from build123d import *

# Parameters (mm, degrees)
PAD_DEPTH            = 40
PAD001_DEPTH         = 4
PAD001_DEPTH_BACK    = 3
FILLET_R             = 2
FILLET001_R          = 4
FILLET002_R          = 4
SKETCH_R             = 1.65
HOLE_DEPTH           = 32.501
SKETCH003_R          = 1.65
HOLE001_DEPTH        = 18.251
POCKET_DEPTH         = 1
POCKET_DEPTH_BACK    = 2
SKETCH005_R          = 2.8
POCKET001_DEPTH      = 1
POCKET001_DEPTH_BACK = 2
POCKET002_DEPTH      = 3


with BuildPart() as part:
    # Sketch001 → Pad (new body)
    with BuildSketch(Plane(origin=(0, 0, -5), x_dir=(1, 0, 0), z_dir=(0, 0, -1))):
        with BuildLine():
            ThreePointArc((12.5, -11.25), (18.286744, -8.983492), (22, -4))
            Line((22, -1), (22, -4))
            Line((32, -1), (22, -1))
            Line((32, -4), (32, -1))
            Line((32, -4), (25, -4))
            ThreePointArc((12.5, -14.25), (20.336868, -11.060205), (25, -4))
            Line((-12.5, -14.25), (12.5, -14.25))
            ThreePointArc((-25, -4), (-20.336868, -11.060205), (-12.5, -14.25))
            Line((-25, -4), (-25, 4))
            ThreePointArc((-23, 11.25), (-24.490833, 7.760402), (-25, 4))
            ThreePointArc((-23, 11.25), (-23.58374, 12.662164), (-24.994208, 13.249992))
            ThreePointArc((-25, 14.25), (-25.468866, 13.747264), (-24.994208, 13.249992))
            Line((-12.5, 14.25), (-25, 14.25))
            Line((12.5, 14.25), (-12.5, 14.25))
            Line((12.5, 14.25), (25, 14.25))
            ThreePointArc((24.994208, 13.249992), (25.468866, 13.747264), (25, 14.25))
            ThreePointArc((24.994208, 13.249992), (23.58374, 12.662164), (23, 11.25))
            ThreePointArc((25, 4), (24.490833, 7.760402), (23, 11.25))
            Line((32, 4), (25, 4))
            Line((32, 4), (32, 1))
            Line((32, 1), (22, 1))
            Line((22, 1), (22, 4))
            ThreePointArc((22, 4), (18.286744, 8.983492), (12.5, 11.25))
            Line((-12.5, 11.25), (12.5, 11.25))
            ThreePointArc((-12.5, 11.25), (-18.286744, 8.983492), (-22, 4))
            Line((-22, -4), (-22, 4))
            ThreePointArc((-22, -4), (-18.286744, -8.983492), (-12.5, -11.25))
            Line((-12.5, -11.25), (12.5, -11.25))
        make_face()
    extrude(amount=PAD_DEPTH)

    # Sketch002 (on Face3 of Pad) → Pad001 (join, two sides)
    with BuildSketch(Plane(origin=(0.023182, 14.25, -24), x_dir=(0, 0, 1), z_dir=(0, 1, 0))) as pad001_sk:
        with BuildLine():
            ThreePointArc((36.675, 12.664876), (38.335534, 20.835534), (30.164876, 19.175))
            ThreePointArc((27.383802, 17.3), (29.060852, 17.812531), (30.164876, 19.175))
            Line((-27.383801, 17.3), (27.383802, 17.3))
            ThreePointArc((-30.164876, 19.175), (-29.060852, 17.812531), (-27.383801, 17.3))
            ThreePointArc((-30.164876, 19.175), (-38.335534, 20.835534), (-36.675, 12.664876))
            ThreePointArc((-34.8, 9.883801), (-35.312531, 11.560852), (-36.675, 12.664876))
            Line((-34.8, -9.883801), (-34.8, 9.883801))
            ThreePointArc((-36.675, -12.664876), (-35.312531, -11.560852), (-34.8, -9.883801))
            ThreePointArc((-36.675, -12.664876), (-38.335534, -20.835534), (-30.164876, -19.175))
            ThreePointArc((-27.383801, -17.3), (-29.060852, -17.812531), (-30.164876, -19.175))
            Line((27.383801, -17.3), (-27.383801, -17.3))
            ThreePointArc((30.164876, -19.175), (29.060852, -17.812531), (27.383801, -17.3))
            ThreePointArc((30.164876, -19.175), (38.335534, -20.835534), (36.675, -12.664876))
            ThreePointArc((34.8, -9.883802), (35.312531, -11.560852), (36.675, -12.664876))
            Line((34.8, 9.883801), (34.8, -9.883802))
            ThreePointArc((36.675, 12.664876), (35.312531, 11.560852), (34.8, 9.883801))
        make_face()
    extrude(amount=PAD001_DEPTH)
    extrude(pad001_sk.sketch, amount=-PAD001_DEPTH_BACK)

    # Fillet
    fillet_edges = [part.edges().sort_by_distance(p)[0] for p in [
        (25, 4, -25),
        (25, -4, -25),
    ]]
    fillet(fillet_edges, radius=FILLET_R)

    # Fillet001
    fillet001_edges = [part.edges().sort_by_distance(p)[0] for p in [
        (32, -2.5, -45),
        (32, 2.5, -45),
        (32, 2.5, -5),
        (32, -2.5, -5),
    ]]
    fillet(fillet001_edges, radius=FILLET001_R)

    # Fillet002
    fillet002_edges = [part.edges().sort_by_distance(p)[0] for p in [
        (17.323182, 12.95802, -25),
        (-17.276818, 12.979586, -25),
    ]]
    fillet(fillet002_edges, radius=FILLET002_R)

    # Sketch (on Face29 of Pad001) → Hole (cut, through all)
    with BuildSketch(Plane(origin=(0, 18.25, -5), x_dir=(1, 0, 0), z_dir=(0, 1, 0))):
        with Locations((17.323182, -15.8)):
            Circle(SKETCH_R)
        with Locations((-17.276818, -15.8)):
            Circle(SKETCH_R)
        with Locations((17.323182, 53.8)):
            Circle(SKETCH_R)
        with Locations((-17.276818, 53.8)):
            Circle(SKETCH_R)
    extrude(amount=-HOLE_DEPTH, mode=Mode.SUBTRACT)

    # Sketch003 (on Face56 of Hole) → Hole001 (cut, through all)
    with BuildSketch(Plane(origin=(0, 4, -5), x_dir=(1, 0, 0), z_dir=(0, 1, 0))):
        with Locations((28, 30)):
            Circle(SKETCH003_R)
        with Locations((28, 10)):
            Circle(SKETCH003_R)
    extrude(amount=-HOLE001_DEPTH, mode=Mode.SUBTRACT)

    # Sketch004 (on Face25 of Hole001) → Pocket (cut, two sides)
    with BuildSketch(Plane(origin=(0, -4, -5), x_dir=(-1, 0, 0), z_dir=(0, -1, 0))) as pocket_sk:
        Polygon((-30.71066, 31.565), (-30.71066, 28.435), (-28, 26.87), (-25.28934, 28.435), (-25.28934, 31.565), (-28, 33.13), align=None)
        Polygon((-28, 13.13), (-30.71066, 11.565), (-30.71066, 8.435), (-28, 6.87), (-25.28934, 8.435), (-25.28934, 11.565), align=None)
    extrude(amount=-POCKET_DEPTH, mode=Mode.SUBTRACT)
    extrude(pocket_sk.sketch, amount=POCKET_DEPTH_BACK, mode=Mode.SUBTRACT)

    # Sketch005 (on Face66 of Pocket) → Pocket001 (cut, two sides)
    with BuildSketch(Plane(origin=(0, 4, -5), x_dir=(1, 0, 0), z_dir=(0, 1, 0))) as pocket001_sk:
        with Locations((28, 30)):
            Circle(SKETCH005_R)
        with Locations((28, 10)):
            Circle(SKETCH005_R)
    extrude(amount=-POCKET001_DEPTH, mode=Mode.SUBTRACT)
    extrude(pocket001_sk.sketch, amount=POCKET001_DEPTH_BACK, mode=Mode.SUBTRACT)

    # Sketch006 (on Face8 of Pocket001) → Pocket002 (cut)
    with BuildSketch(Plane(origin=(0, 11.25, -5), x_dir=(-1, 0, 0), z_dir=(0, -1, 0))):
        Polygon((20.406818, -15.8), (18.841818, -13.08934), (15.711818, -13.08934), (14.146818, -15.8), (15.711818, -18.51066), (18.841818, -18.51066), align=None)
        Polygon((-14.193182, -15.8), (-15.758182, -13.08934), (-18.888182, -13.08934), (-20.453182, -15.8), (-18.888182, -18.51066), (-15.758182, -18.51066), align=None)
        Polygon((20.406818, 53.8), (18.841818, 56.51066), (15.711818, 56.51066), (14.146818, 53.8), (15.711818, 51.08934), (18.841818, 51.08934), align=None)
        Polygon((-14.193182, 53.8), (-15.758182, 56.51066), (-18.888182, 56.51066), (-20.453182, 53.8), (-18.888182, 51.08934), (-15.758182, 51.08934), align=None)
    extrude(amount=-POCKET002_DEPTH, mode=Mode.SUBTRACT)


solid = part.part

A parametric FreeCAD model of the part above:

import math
import FreeCAD as App
import Part
import Sketcher
Q = App.Units.Quantity


def edges_at(feature, points):
    """Names of the edges that pass closest to the given points."""
    edges = feature.Shape.Edges
    near = lambda p: min(range(len(edges)), key=lambda i: edges[i].distToShape(Part.Vertex(*p))[0])
    return sorted({f"Edge{near(p) + 1}" for p in points})

doc = App.newDocument("Part")
params = doc.addObject("Spreadsheet::Sheet", "Params")
for row, (alias, value) in enumerate([
    ("sketch1_radius", "2.000001 mm"),
    ("sketch1_width", "25 mm"),
    ("sketch1_width2", "10 mm"),
    ("sketch1_width3", "7 mm"),
    ("sketch1_width4", "50 mm"),
    ("pad1_length", "40 mm"),
    ("sketch2_radius", "5 mm"),
    ("sketch2_radius2", "3 mm"),
    ("pad2_length", "4 mm"),
    ("pad2_length2", "3 mm"),
    ("fillet_radius", "2 mm"),
    ("fillet2_radius", "4 mm"),
    ("fillet3_radius", "4 mm"),
    ("sketch3_diameter", "3.3 mm"),
    ("sketch4_diameter", "3.3 mm"),
    ("sketch5_height", "3.13 mm"),
    ("sketch5_length", "3.13 mm"),
    ("pocket3_length", "1 mm"),
    ("pocket3_length2", "2 mm"),
    ("sketch6_diameter", "5.6 mm"),
    ("pocket4_length", "1 mm"),
    ("pocket4_length2", "2 mm"),
    ("sketch7_width", "3.13 mm"),
    ("sketch7_length", "3.13 mm"),
    ("pocket5_length", "3 mm"),
], start=1):
    params.set(f"A{row}", alias)
    params.set(f"B{row}", "=" + value)
    params.setAlias(f"B{row}", alias)

body = doc.addObject("PartDesign::Body", "Body")

# Sketch on XY plane
sketch1 = body.newObject("Sketcher::SketchObject", "Sketch")
sketch1.AttachmentSupport = (doc.getObject("XY_Plane"), [""])
sketch1.MapMode = "FlatFace"
sketch1.AttachmentOffset = App.Placement(App.Vector(0, 0, -5), App.Rotation())
sketch1.addGeometry([
    Part.ArcOfCircle(Part.Circle(App.Vector(11.430922, 0.000002, 0), App.Vector(0, 0, 1), 11.300681), math.radians(20.729769), math.radians(84.571533)),  # 0
    Part.LineSegment(App.Vector(12.5, 11.25, 0), App.Vector(-12.5, 11.25, 0)),  # 1
    Part.ArcOfCircle(Part.Circle(App.Vector(-11.430922, 0.000002, 0), App.Vector(0, 0, 1), 11.300681), math.radians(95.428467), math.radians(159.270231)),  # 2
    Part.LineSegment(App.Vector(-22, 4, 0), App.Vector(-22, -4, 0)),  # 3
    Part.ArcOfCircle(Part.Circle(App.Vector(-11.430922, -0.000002, 0), App.Vector(0, 0, 1), 11.300681), math.radians(-159.270231), math.radians(-95.428467)),  # 4
    Part.LineSegment(App.Vector(-12.5, -11.25, 0), App.Vector(12.5, -11.25, 0)),  # 5
    Part.ArcOfCircle(Part.Circle(App.Vector(11.430922, -0.000002, 0), App.Vector(0, 0, 1), 11.300681), math.radians(-84.571533), math.radians(-20.729769)),  # 6
    Part.LineSegment(App.Vector(22, -4, 0), App.Vector(22, -1, 0)),  # 7
    Part.LineSegment(App.Vector(22, -1, 0), App.Vector(32, -1, 0)),  # 8
    Part.LineSegment(App.Vector(32, -1, 0), App.Vector(32, -4, 0)),  # 9
    Part.LineSegment(App.Vector(32, -4, 0), App.Vector(25, -4, 0)),  # 10
    Part.ArcOfCircle(Part.Circle(App.Vector(10.85937, -3.999999, 0), App.Vector(0, 0, 1), 14.14063), math.radians(-30.844317), math.radians(-0.000005)),  # 11
    Part.ArcOfCircle(Part.Circle(App.Vector(25.000001, -11.249999, 0), App.Vector(0, 0, 1), 2.000001), math.radians(-179.999984), math.radians(-90.165956)),  # 12
    Part.ArcOfCircle(Part.Circle(App.Vector(24.968017, -13.750164, 0), App.Vector(0, 0, 1), 0.500858), math.radians(-86.338763), math.radians(87.002465)),  # 13
    Part.LineSegment(App.Vector(25, -14.25, 0), App.Vector(-25, -14.25, 0)),  # 14
    Part.ArcOfCircle(Part.Circle(App.Vector(-24.968017, -13.750164, 0), App.Vector(0, 0, 1), 0.500858), math.radians(92.997535), math.radians(266.338763)),  # 15
    Part.ArcOfCircle(Part.Circle(App.Vector(-25.000001, -11.249999, 0), App.Vector(0, 0, 1), 2.000001), math.radians(-89.834044), math.radians(-0.000016)),  # 16
    Part.ArcOfCircle(Part.Circle(App.Vector(-10.85937, -3.999999, 0), App.Vector(0, 0, 1), 14.14063), math.radians(-179.999995), math.radians(-149.155683)),  # 17
    Part.LineSegment(App.Vector(-25, -4, 0), App.Vector(-25, 4, 0)),  # 18
    Part.ArcOfCircle(Part.Circle(App.Vector(-11.267502, 0.000002, 0), App.Vector(0, 0, 1), 14.303199), math.radians(94.943274), math.radians(163.760231)),  # 19
    Part.LineSegment(App.Vector(-12.5, 14.25, 0), App.Vector(12.5, 14.25, 0)),  # 20
    Part.ArcOfCircle(Part.Circle(App.Vector(11.267502, 0.000002, 0), App.Vector(0, 0, 1), 14.303199), math.radians(16.239769), math.radians(85.056726)),  # 21
    Part.LineSegment(App.Vector(25, 4, 0), App.Vector(32, 4, 0)),  # 22
    Part.LineSegment(App.Vector(32, 4, 0), App.Vector(32, 1, 0)),  # 23
    Part.LineSegment(App.Vector(32, 1, 0), App.Vector(22, 1, 0)),  # 24
    Part.LineSegment(App.Vector(22, 1, 0), App.Vector(22, 4, 0)),  # 25
], False)
sketch1.addConstraint([
    Sketcher.Constraint("Coincident", 0, 2, 1, 1),
    Sketcher.Constraint("Coincident", 1, 2, 2, 1),
    Sketcher.Constraint("Coincident", 2, 2, 3, 1),
    Sketcher.Constraint("Coincident", 3, 2, 4, 1),
    Sketcher.Constraint("Coincident", 4, 2, 5, 1),
    Sketcher.Constraint("Coincident", 5, 2, 6, 1),
    Sketcher.Constraint("Coincident", 6, 2, 7, 1),
    Sketcher.Constraint("Coincident", 7, 2, 8, 1),
    Sketcher.Constraint("Coincident", 8, 2, 9, 1),
    Sketcher.Constraint("Coincident", 9, 2, 10, 1),
    Sketcher.Constraint("Coincident", 10, 2, 11, 2),
    Sketcher.Constraint("Coincident", 11, 1, 12, 1),
    Sketcher.Constraint("Coincident", 12, 2, 13, 2),
    Sketcher.Constraint("Coincident", 13, 1, 14, 1),
    Sketcher.Constraint("Coincident", 14, 2, 15, 2),
    Sketcher.Constraint("Coincident", 15, 1, 16, 1),
    Sketcher.Constraint("Coincident", 16, 2, 17, 2),
    Sketcher.Constraint("Tangent", 17, 1, 18, 1),
    Sketcher.Constraint("Coincident", 18, 2, 19, 2),
    Sketcher.Constraint("Coincident", 19, 1, 20, 1),
    Sketcher.Constraint("Coincident", 20, 2, 21, 2),
    Sketcher.Constraint("Coincident", 21, 1, 22, 1),
    Sketcher.Constraint("Coincident", 22, 2, 23, 1),
    Sketcher.Constraint("Coincident", 23, 2, 24, 1),
    Sketcher.Constraint("Coincident", 24, 2, 25, 1),
    Sketcher.Constraint("Coincident", 25, 2, 0, 1),
    Sketcher.Constraint("Horizontal", 1),
    Sketcher.Constraint("Vertical", 3),
    Sketcher.Constraint("Horizontal", 5),
    Sketcher.Constraint("Vertical", 7),
    Sketcher.Constraint("Horizontal", 8),
    Sketcher.Constraint("Vertical", 9),
    Sketcher.Constraint("Horizontal", 10),
    Sketcher.Constraint("Horizontal", 14),
    Sketcher.Constraint("Vertical", 18),
    Sketcher.Constraint("Horizontal", 20),
    Sketcher.Constraint("Horizontal", 22),
    Sketcher.Constraint("Vertical", 23),
    Sketcher.Constraint("Horizontal", 24),
    Sketcher.Constraint("Vertical", 25),
    Sketcher.Constraint("Coincident", 4, 3, 2, 3),
    Sketcher.Constraint("Coincident", 6, 3, 0, 3),
    Sketcher.Constraint("Equal", 0, 2),
    Sketcher.Constraint("Equal", 2, 4),
    Sketcher.Constraint("Equal", 4, 6),
    Sketcher.Constraint("Equal", 13, 15),
    Sketcher.Constraint("Equal", 12, 16),
    Sketcher.Constraint("Equal", 11, 17),
    Sketcher.Constraint("Equal", 19, 21),
    Sketcher.Constraint("Symmetric", 0, 3, 2, 3, -1, 1),
    Sketcher.Constraint("Symmetric", 19, 3, 21, 3, -1, 1),
    Sketcher.Constraint("Symmetric", 10, 2, 18, 2, -1, 1),
    Sketcher.Constraint("Symmetric", 17, 1, 21, 1, -1, 1),
    Sketcher.Constraint("Symmetric", 13, 3, 15, 3, -2),
    Sketcher.Constraint("Symmetric", 12, 3, 16, 3, -2),
    Sketcher.Constraint("Symmetric", 3, 2, 6, 2, -2),
    Sketcher.Constraint("Symmetric", 9, 2, 22, 2, -1),
    Sketcher.Constraint("Symmetric", 7, 2, 24, 2, -1),
    Sketcher.Constraint("Horizontal", 11, 3, 17, 3),
    Sketcher.Constraint("Horizontal", 17, 3, 3, 2),
    Sketcher.Constraint("Horizontal", 16, 3, 4, 2),
    Sketcher.Constraint("Horizontal", 5, 2, 11, 1),
    Sketcher.Constraint("Vertical", 1, 2, 4, 2),
    Sketcher.Constraint("Vertical", 12, 3, 10, 2),
    Sketcher.Constraint("Vertical", 10, 2, 13, 1),
    Sketcher.Constraint("Vertical", 4, 2, 19, 1),
    Sketcher.Constraint("Radius", 12, Q("2.000001 mm")),
    Sketcher.Constraint("DistanceX", 1, 2, 1, 1, Q("25 mm")),
    Sketcher.Constraint("DistanceX", 8, 1, 8, 2, Q("10 mm")),
    Sketcher.Constraint("DistanceX", 10, 2, 10, 1, Q("7 mm")),
    Sketcher.Constraint("DistanceX", 14, 2, 14, 1, Q("50 mm")),
    Sketcher.Constraint("DistanceY", 3, 2, 3, 1, Q("8 mm")),
    Sketcher.Constraint("DistanceY", 7, 1, 7, 2, Q("3 mm")),
    Sketcher.Constraint("DistanceY", 13, 1, 12, 3, Q("3.000001 mm")),
    Sketcher.Constraint("DistanceY", 1, 2, 19, 1, Q("3 mm")),
    Sketcher.Constraint("Radius", 19, Q("14.303199 mm")),
    Sketcher.Constraint("Radius", 13, Q("0.500858 mm")),
    Sketcher.Constraint("DistanceX", -1, 1, 12, 2, Q("24.994208 mm")),
])
sketch1.setExpression("Constraints[66]", "Params.sketch1_radius")
sketch1.setExpression("Constraints[67]", "Params.sketch1_width")
sketch1.setExpression("Constraints[68]", "Params.sketch1_width2")
sketch1.setExpression("Constraints[69]", "Params.sketch1_width3")
sketch1.setExpression("Constraints[70]", "Params.sketch1_width4")
pad1 = body.newObject("PartDesign::Pad", "Pad")
pad1.Profile = sketch1
pad1.setExpression("Length", "Params.pad1_length")
pad1.Reversed = True

# Sketch on XZ plane
sketch2 = body.newObject("Sketcher::SketchObject", "Sketch001")
sketch2.AttachmentSupport = (doc.getObject("XZ_Plane"), [""])
sketch2.MapMode = "FlatFace"
sketch2.AttachmentOffset = App.Placement(App.Vector(0, 0, -14.25), App.Rotation())
sketch2.addGeometry([
    Part.ArcOfCircle(Part.Circle(App.Vector(17.323182, 10.8, 0), App.Vector(0, 0, 1), 5), math.radians(-67.975688), math.radians(157.975688)),  # 0
    Part.ArcOfCircle(Part.Circle(App.Vector(20.323182, 3.383802, 0), App.Vector(0, 0, 1), 3), math.radians(112.024311), math.radians(179.999994)),  # 1
    Part.LineSegment(App.Vector(17.323182, 3.383802, 0), App.Vector(17.323182, -51.383801, 0)),  # 2
    Part.ArcOfCircle(Part.Circle(App.Vector(20.323182, -51.383802, 0), App.Vector(0, 0, 1), 3), math.radians(179.999987), math.radians(247.975689)),  # 3
    Part.ArcOfCircle(Part.Circle(App.Vector(17.323182, -58.8, 0), App.Vector(0, 0, 1), 5), math.radians(-157.975688), math.radians(67.975688)),  # 4
    Part.ArcOfCircle(Part.Circle(App.Vector(9.906984, -61.8, 0), App.Vector(0, 0, 1), 3), math.radians(22.024311), math.radians(90.000013)),  # 5
    Part.LineSegment(App.Vector(9.906983, -58.8, 0), App.Vector(-9.860619, -58.8, 0)),  # 6
    Part.ArcOfCircle(Part.Circle(App.Vector(-9.86062, -61.8, 0), App.Vector(0, 0, 1), 3), math.radians(89.999987), math.radians(157.975689)),  # 7
    Part.ArcOfCircle(Part.Circle(App.Vector(-17.276818, -58.8, 0), App.Vector(0, 0, 1), 5), math.radians(112.024312), math.radians(337.975688)),  # 8
    Part.ArcOfCircle(Part.Circle(App.Vector(-20.276818, -51.383802, 0), App.Vector(0, 0, 1), 3), math.radians(-67.975689), math.radians(0.000013)),  # 9
    Part.LineSegment(App.Vector(-17.276818, -51.383801, 0), App.Vector(-17.276818, 3.383801, 0)),  # 10
    Part.ArcOfCircle(Part.Circle(App.Vector(-20.276818, 3.383802, 0), App.Vector(0, 0, 1), 3), math.radians(-0.000013), math.radians(67.975689)),  # 11
    Part.ArcOfCircle(Part.Circle(App.Vector(-17.276818, 10.8, 0), App.Vector(0, 0, 1), 5), math.radians(22.024312), math.radians(247.975688)),  # 12
    Part.ArcOfCircle(Part.Circle(App.Vector(-9.86062, 13.8, 0), App.Vector(0, 0, 1), 3), math.radians(-157.975689), math.radians(-90.000006)),  # 13
    Part.LineSegment(App.Vector(-9.86062, 10.8, 0), App.Vector(9.906983, 10.8, 0)),  # 14
    Part.ArcOfCircle(Part.Circle(App.Vector(9.906984, 13.8, 0), App.Vector(0, 0, 1), 3), math.radians(-90.000013), math.radians(-22.024311)),  # 15
], False)
sketch2.addConstraint([
    Sketcher.Constraint("Tangent", 0, 1, 1, 1),
    Sketcher.Constraint("Tangent", 1, 2, 2, 1),
    Sketcher.Constraint("Tangent", 2, 2, 3, 1),
    Sketcher.Constraint("Tangent", 3, 2, 4, 2),
    Sketcher.Constraint("Tangent", 4, 1, 5, 1),
    Sketcher.Constraint("Tangent", 5, 2, 6, 1),
    Sketcher.Constraint("Tangent", 6, 2, 7, 1),
    Sketcher.Constraint("Tangent", 7, 2, 8, 2),
    Sketcher.Constraint("Tangent", 8, 1, 9, 1),
    Sketcher.Constraint("Tangent", 9, 2, 10, 1),
    Sketcher.Constraint("Tangent", 10, 2, 11, 1),
    Sketcher.Constraint("Tangent", 11, 2, 12, 2),
    Sketcher.Constraint("Tangent", 12, 1, 13, 1),
    Sketcher.Constraint("Tangent", 13, 2, 14, 1),
    Sketcher.Constraint("Tangent", 14, 2, 15, 1),
    Sketcher.Constraint("Tangent", 15, 2, 0, 2),
    Sketcher.Constraint("Vertical", 2),
    Sketcher.Constraint("Horizontal", 6),
    Sketcher.Constraint("Vertical", 10),
    Sketcher.Constraint("Horizontal", 14),
    Sketcher.Constraint("Equal", 1, 3),
    Sketcher.Constraint("Equal", 0, 4),
    Sketcher.Constraint("Equal", 3, 5),
    Sketcher.Constraint("Equal", 5, 7),
    Sketcher.Constraint("Equal", 4, 8),
    Sketcher.Constraint("Equal", 7, 9),
    Sketcher.Constraint("Equal", 9, 11),
    Sketcher.Constraint("Equal", 8, 12),
    Sketcher.Constraint("Equal", 11, 13),
    Sketcher.Constraint("Equal", 13, 15),
    Sketcher.Constraint("Horizontal", 4, 3, 8, 3),
    Sketcher.Constraint("Horizontal", 3, 3, 9, 3),
    Sketcher.Constraint("Horizontal", 1, 3, 11, 3),
    Sketcher.Constraint("Horizontal", 0, 3, 12, 3),
    Sketcher.Constraint("Horizontal", 8, 3, 5, 2),
    Sketcher.Constraint("Horizontal", 12, 3, 13, 2),
    Sketcher.Constraint("Vertical", 0, 3, 4, 3),
    Sketcher.Constraint("Vertical", 4, 3, 1, 2),
    Sketcher.Constraint("Radius", 0, Q("5 mm")),
    Sketcher.Constraint("Radius", 1, Q("3 mm")),
    Sketcher.Constraint("DistanceY", -1, 1, 0, 3, Q("10.8 mm")),
    Sketcher.Constraint("DistanceY", 4, 3, -1, 1, Q("58.8 mm")),
    Sketcher.Constraint("DistanceX", 8, 3, 4, 3, Q("34.6 mm")),
    Sketcher.Constraint("DistanceX", -1, 1, 1, 3, Q("20.323182 mm")),
])
sketch2.setExpression("Constraints[38]", "Params.sketch2_radius")
sketch2.setExpression("Constraints[39]", "Params.sketch2_radius2")
pad2 = body.newObject("PartDesign::Pad", "Pad001")
pad2.Profile = sketch2
pad2.Type = "TwoLengths"
pad2.setExpression("Length", "Params.pad2_length")
pad2.setExpression("Length2", "Params.pad2_length2")
pad2.Reversed = True
doc.recompute()

fillet = body.newObject("PartDesign::Fillet", "Fillet")
fillet.Base = (pad2, edges_at(pad2, [(25, 4, -25), (25, -4, -25)]))
fillet.setExpression("Radius", "Params.fillet_radius")
doc.recompute()

fillet2 = body.newObject("PartDesign::Fillet", "Fillet001")
fillet2.Base = (fillet, edges_at(fillet, [
    (32, -2.5, -45),
    (32, 2.5, -45),
    (32, 2.5, -5),
    (32, -2.5, -5),
]))
fillet2.setExpression("Radius", "Params.fillet2_radius")
doc.recompute()

fillet3 = body.newObject("PartDesign::Fillet", "Fillet002")
fillet3.Base = (fillet2, edges_at(fillet2, [(17.323, 12.958, -25), (-17.277, 12.98, -25)]))
fillet3.setExpression("Radius", "Params.fillet3_radius")

# Sketch on XZ plane
sketch3 = body.newObject("Sketcher::SketchObject", "Sketch002")
sketch3.AttachmentSupport = (doc.getObject("XZ_Plane"), [""])
sketch3.MapMode = "FlatFace"
sketch3.AttachmentOffset = App.Placement(App.Vector(0, 0, -18.25), App.Rotation())
sketch3.addGeometry([
    Part.Circle(App.Vector(17.323182, 10.8, 0), App.Vector(0, 0, 1), 1.65),
    Part.Circle(App.Vector(-17.276818, 10.8, 0), App.Vector(0, 0, 1), 1.65),
    Part.Circle(App.Vector(17.323182, -58.8, 0), App.Vector(0, 0, 1), 1.65),
    Part.Circle(App.Vector(-17.276818, -58.8, 0), App.Vector(0, 0, 1), 1.65),
], False)
sketch3.addConstraint([
    Sketcher.Constraint("Equal", 0, 1),
    Sketcher.Constraint("Equal", 1, 2),
    Sketcher.Constraint("Equal", 2, 3),
    Sketcher.Constraint("Horizontal", 0, 3, 1, 3),
    Sketcher.Constraint("Horizontal", 2, 3, 3, 3),
    Sketcher.Constraint("Vertical", 0, 3, 2, 3),
    Sketcher.Constraint("Vertical", 1, 3, 3, 3),
    Sketcher.Constraint("Diameter", 0, Q("3.3 mm")),
    Sketcher.Constraint("DistanceY", -1, 1, 0, 3, Q("10.8 mm")),
    Sketcher.Constraint("DistanceY", 2, 3, -1, 1, Q("58.8 mm")),
    Sketcher.Constraint("DistanceX", 1, 3, 0, 3, Q("34.6 mm")),
    Sketcher.Constraint("DistanceX", -1, 1, 0, 3, Q("17.323182 mm")),
])
sketch3.setExpression("Constraints[7]", "Params.sketch3_diameter")
pocket1 = body.newObject("PartDesign::Pocket", "Pocket")
pocket1.Profile = sketch3
pocket1.Type = "ThroughAll"
pocket1.Reversed = True

# Sketch on XZ plane
sketch4 = body.newObject("Sketcher::SketchObject", "Sketch003")
sketch4.AttachmentSupport = (doc.getObject("XZ_Plane"), [""])
sketch4.MapMode = "FlatFace"
sketch4.AttachmentOffset = App.Placement(App.Vector(0, 0, -4), App.Rotation())
sketch4.addGeometry([
    Part.Circle(App.Vector(28, -35, 0), App.Vector(0, 0, 1), 1.65),
    Part.Circle(App.Vector(28, -15, 0), App.Vector(0, 0, 1), 1.65),
], False)
sketch4.addConstraint([
    Sketcher.Constraint("Equal", 0, 1),
    Sketcher.Constraint("Vertical", 0, 3, 1, 3),
    Sketcher.Constraint("Diameter", 0, Q("3.3 mm")),
    Sketcher.Constraint("DistanceX", -1, 1, 0, 3, Q("28 mm")),
    Sketcher.Constraint("DistanceY", 0, 3, -1, 1, Q("35 mm")),
    Sketcher.Constraint("DistanceY", 1, 3, -1, 1, Q("15 mm")),
])
sketch4.setExpression("Constraints[2]", "Params.sketch4_diameter")
pocket2 = body.newObject("PartDesign::Pocket", "Pocket001")
pocket2.Profile = sketch4
pocket2.Type = "ThroughAll"
pocket2.Reversed = True

# Sketch on XZ plane
sketch5 = body.newObject("Sketcher::SketchObject", "Sketch004")
sketch5.AttachmentSupport = (doc.getObject("XZ_Plane"), [""])
sketch5.MapMode = "FlatFace"
sketch5.AttachmentOffset = App.Placement(App.Vector(0, 0, 4), App.Rotation())
sketch5.addGeometry([
    Part.LineSegment(App.Vector(30.71066, -36.565, 0), App.Vector(30.71066, -33.435, 0)),  # 0
    Part.LineSegment(App.Vector(30.71066, -33.435, 0), App.Vector(28, -31.87, 0)),  # 1
    Part.LineSegment(App.Vector(28, -31.87, 0), App.Vector(25.28934, -33.435, 0)),  # 2
    Part.LineSegment(App.Vector(25.28934, -33.435, 0), App.Vector(25.28934, -36.565, 0)),  # 3
    Part.LineSegment(App.Vector(25.28934, -36.565, 0), App.Vector(28, -38.13, 0)),  # 4
    Part.LineSegment(App.Vector(28, -38.13, 0), App.Vector(30.71066, -36.565, 0)),  # 5
    Part.LineSegment(App.Vector(28, -18.13, 0), App.Vector(30.71066, -16.565, 0)),  # 6
    Part.LineSegment(App.Vector(30.71066, -16.565, 0), App.Vector(30.71066, -13.435, 0)),  # 7
    Part.LineSegment(App.Vector(30.71066, -13.435, 0), App.Vector(28, -11.87, 0)),  # 8
    Part.LineSegment(App.Vector(28, -11.87, 0), App.Vector(25.28934, -13.435, 0)),  # 9
    Part.LineSegment(App.Vector(25.28934, -13.435, 0), App.Vector(25.28934, -16.565, 0)),  # 10
    Part.LineSegment(App.Vector(25.28934, -16.565, 0), App.Vector(28, -18.13, 0)),  # 11
], False)
sketch5.addConstraint([
    Sketcher.Constraint("Coincident", 0, 2, 1, 1),
    Sketcher.Constraint("Coincident", 1, 2, 2, 1),
    Sketcher.Constraint("Coincident", 2, 2, 3, 1),
    Sketcher.Constraint("Coincident", 3, 2, 4, 1),
    Sketcher.Constraint("Coincident", 4, 2, 5, 1),
    Sketcher.Constraint("Coincident", 5, 2, 0, 1),
    Sketcher.Constraint("Coincident", 6, 2, 7, 1),
    Sketcher.Constraint("Coincident", 7, 2, 8, 1),
    Sketcher.Constraint("Coincident", 8, 2, 9, 1),
    Sketcher.Constraint("Coincident", 9, 2, 10, 1),
    Sketcher.Constraint("Coincident", 10, 2, 11, 1),
    Sketcher.Constraint("Coincident", 11, 2, 6, 1),
    Sketcher.Constraint("Vertical", 0),
    Sketcher.Constraint("Vertical", 3),
    Sketcher.Constraint("Vertical", 7),
    Sketcher.Constraint("Vertical", 10),
    Sketcher.Constraint("Parallel", 1, 4),
    Sketcher.Constraint("Parallel", 2, 5),
    Sketcher.Constraint("Parallel", 5, 6),
    Sketcher.Constraint("Parallel", 4, 8),
    Sketcher.Constraint("Parallel", 6, 9),
    Sketcher.Constraint("Parallel", 8, 11),
    Sketcher.Constraint("Horizontal", 0, 2, 2, 2),
    Sketcher.Constraint("Horizontal", 3, 2, 5, 2),
    Sketcher.Constraint("Horizontal", 7, 2, 9, 2),
    Sketcher.Constraint("Horizontal", 6, 2, 10, 2),
    Sketcher.Constraint("Vertical", 1, 2, 4, 2),
    Sketcher.Constraint("Vertical", 5, 2, 6, 2),
    Sketcher.Constraint("Vertical", 4, 2, 8, 2),
    Sketcher.Constraint("Equal", 3, 7),
    Sketcher.Constraint("Angle", 1, Q("150.000004 deg")),
    Sketcher.Constraint("DistanceX", -1, 1, 1, 2, Q("28 mm")),
    Sketcher.Constraint("DistanceY", 5, 2, 6, 2, Q("20 mm")),
    Sketcher.Constraint("DistanceY", 0, 1, 0, 2, Q("3.13 mm")),
    Sketcher.Constraint("Distance", 1, Q("3.13 mm")),
    Sketcher.Constraint("DistanceY", 1, 2, -1, 1, Q("31.87 mm")),
])
sketch5.setExpression("Constraints[33]", "Params.sketch5_height")
sketch5.setExpression("Constraints[34]", "Params.sketch5_length")
pocket3 = body.newObject("PartDesign::Pocket", "Pocket002")
pocket3.Profile = sketch5
pocket3.Type = "TwoLengths"
pocket3.setExpression("Length", "Params.pocket3_length")
pocket3.setExpression("Length2", "Params.pocket3_length2")

# Sketch on XZ plane
sketch6 = body.newObject("Sketcher::SketchObject", "Sketch005")
sketch6.AttachmentSupport = (doc.getObject("XZ_Plane"), [""])
sketch6.MapMode = "FlatFace"
sketch6.AttachmentOffset = App.Placement(App.Vector(0, 0, -4), App.Rotation())
sketch6.addGeometry([
    Part.Circle(App.Vector(28, -35, 0), App.Vector(0, 0, 1), 2.8),
    Part.Circle(App.Vector(28, -15, 0), App.Vector(0, 0, 1), 2.8),
], False)
sketch6.addConstraint([
    Sketcher.Constraint("Equal", 0, 1),
    Sketcher.Constraint("Vertical", 0, 3, 1, 3),
    Sketcher.Constraint("Diameter", 0, Q("5.6 mm")),
    Sketcher.Constraint("DistanceX", -1, 1, 0, 3, Q("28 mm")),
    Sketcher.Constraint("DistanceY", 0, 3, -1, 1, Q("35 mm")),
    Sketcher.Constraint("DistanceY", 1, 3, -1, 1, Q("15 mm")),
])
sketch6.setExpression("Constraints[2]", "Params.sketch6_diameter")
pocket4 = body.newObject("PartDesign::Pocket", "Pocket003")
pocket4.Profile = sketch6
pocket4.Type = "TwoLengths"
pocket4.setExpression("Length", "Params.pocket4_length")
pocket4.setExpression("Length2", "Params.pocket4_length2")
pocket4.Reversed = True

# Sketch on XZ plane
sketch7 = body.newObject("Sketcher::SketchObject", "Sketch006")
sketch7.AttachmentSupport = (doc.getObject("XZ_Plane"), [""])
sketch7.MapMode = "FlatFace"
sketch7.AttachmentOffset = App.Placement(App.Vector(0, 0, -11.25), App.Rotation())
sketch7.addGeometry([
    Part.LineSegment(App.Vector(-20.406818, 10.8, 0), App.Vector(-18.841818, 8.08934, 0)),  # 0
    Part.LineSegment(App.Vector(-18.841818, 8.08934, 0), App.Vector(-15.711818, 8.08934, 0)),  # 1
    Part.LineSegment(App.Vector(-15.711818, 8.08934, 0), App.Vector(-14.146818, 10.8, 0)),  # 2
    Part.LineSegment(App.Vector(-14.146818, 10.8, 0), App.Vector(-15.711818, 13.51066, 0)),  # 3
    Part.LineSegment(App.Vector(-15.711818, 13.51066, 0), App.Vector(-18.841818, 13.51066, 0)),  # 4
    Part.LineSegment(App.Vector(-18.841818, 13.51066, 0), App.Vector(-20.406818, 10.8, 0)),  # 5
    Part.LineSegment(App.Vector(14.193182, 10.8, 0), App.Vector(15.758182, 8.08934, 0)),  # 6
    Part.LineSegment(App.Vector(15.758182, 8.08934, 0), App.Vector(18.888182, 8.08934, 0)),  # 7
    Part.LineSegment(App.Vector(18.888182, 8.08934, 0), App.Vector(20.453182, 10.8, 0)),  # 8
    Part.LineSegment(App.Vector(20.453182, 10.8, 0), App.Vector(18.888182, 13.51066, 0)),  # 9
    Part.LineSegment(App.Vector(18.888182, 13.51066, 0), App.Vector(15.758182, 13.51066, 0)),  # 10
    Part.LineSegment(App.Vector(15.758182, 13.51066, 0), App.Vector(14.193182, 10.8, 0)),  # 11
    Part.LineSegment(App.Vector(-20.406818, -58.8, 0), App.Vector(-18.841818, -61.51066, 0)),  # 12
    Part.LineSegment(App.Vector(-18.841818, -61.51066, 0), App.Vector(-15.711818, -61.51066, 0)),  # 13
    Part.LineSegment(App.Vector(-15.711818, -61.51066, 0), App.Vector(-14.146818, -58.8, 0)),  # 14
    Part.LineSegment(App.Vector(-14.146818, -58.8, 0), App.Vector(-15.711818, -56.08934, 0)),  # 15
    Part.LineSegment(App.Vector(-15.711818, -56.08934, 0), App.Vector(-18.841818, -56.08934, 0)),  # 16
    Part.LineSegment(App.Vector(-18.841818, -56.08934, 0), App.Vector(-20.406818, -58.8, 0)),  # 17
    Part.LineSegment(App.Vector(14.193182, -58.8, 0), App.Vector(15.758182, -61.51066, 0)),  # 18
    Part.LineSegment(App.Vector(15.758182, -61.51066, 0), App.Vector(18.888182, -61.51066, 0)),  # 19
    Part.LineSegment(App.Vector(18.888182, -61.51066, 0), App.Vector(20.453182, -58.8, 0)),  # 20
    Part.LineSegment(App.Vector(20.453182, -58.8, 0), App.Vector(18.888182, -56.08934, 0)),  # 21
    Part.LineSegment(App.Vector(18.888182, -56.08934, 0), App.Vector(15.758182, -56.08934, 0)),  # 22
    Part.LineSegment(App.Vector(15.758182, -56.08934, 0), App.Vector(14.193182, -58.8, 0)),  # 23
], False)
sketch7.addConstraint([
    Sketcher.Constraint("Coincident", 0, 2, 1, 1),
    Sketcher.Constraint("Coincident", 1, 2, 2, 1),
    Sketcher.Constraint("Coincident", 2, 2, 3, 1),
    Sketcher.Constraint("Coincident", 3, 2, 4, 1),
    Sketcher.Constraint("Coincident", 4, 2, 5, 1),
    Sketcher.Constraint("Coincident", 5, 2, 0, 1),
    Sketcher.Constraint("Coincident", 6, 2, 7, 1),
    Sketcher.Constraint("Coincident", 7, 2, 8, 1),
    Sketcher.Constraint("Coincident", 8, 2, 9, 1),
    Sketcher.Constraint("Coincident", 9, 2, 10, 1),
    Sketcher.Constraint("Coincident", 10, 2, 11, 1),
    Sketcher.Constraint("Coincident", 11, 2, 6, 1),
    Sketcher.Constraint("Coincident", 12, 2, 13, 1),
    Sketcher.Constraint("Coincident", 13, 2, 14, 1),
    Sketcher.Constraint("Coincident", 14, 2, 15, 1),
    Sketcher.Constraint("Coincident", 15, 2, 16, 1),
    Sketcher.Constraint("Coincident", 16, 2, 17, 1),
    Sketcher.Constraint("Coincident", 17, 2, 12, 1),
    Sketcher.Constraint("Coincident", 18, 2, 19, 1),
    Sketcher.Constraint("Coincident", 19, 2, 20, 1),
    Sketcher.Constraint("Coincident", 20, 2, 21, 1),
    Sketcher.Constraint("Coincident", 21, 2, 22, 1),
    Sketcher.Constraint("Coincident", 22, 2, 23, 1),
    Sketcher.Constraint("Coincident", 23, 2, 18, 1),
    Sketcher.Constraint("Horizontal", 1),
    Sketcher.Constraint("Horizontal", 4),
    Sketcher.Constraint("Horizontal", 7),
    Sketcher.Constraint("Horizontal", 10),
    Sketcher.Constraint("Horizontal", 13),
    Sketcher.Constraint("Horizontal", 16),
    Sketcher.Constraint("Horizontal", 19),
    Sketcher.Constraint("Horizontal", 22),
    Sketcher.Constraint("Parallel", 0, 3),
    Sketcher.Constraint("Parallel", 2, 5),
    Sketcher.Constraint("Parallel", 3, 6),
    Sketcher.Constraint("Parallel", 5, 8),
    Sketcher.Constraint("Parallel", 6, 9),
    Sketcher.Constraint("Parallel", 8, 11),
    Sketcher.Constraint("Parallel", 9, 12),
    Sketcher.Constraint("Parallel", 11, 14),
    Sketcher.Constraint("Parallel", 12, 15),
    Sketcher.Constraint("Parallel", 14, 17),
    Sketcher.Constraint("Parallel", 15, 18),
    Sketcher.Constraint("Parallel", 17, 20),
    Sketcher.Constraint("Parallel", 18, 21),
    Sketcher.Constraint("Parallel", 20, 23),
    Sketcher.Constraint("Horizontal", 2, 2, 5, 2),
    Sketcher.Constraint("Horizontal", 1, 2, 6, 2),
    Sketcher.Constraint("Horizontal", 5, 2, 8, 2),
    Sketcher.Constraint("Horizontal", 4, 2, 9, 2),
    Sketcher.Constraint("Horizontal", 8, 2, 11, 2),
    Sketcher.Constraint("Horizontal", 14, 2, 17, 2),
    Sketcher.Constraint("Horizontal", 13, 2, 18, 2),
    Sketcher.Constraint("Horizontal", 17, 2, 20, 2),
    Sketcher.Constraint("Horizontal", 16, 2, 21, 2),
    Sketcher.Constraint("Horizontal", 20, 2, 23, 2),
    Sketcher.Constraint("Vertical", 1, 2, 3, 2),
    Sketcher.Constraint("Vertical", 0, 2, 4, 2),
    Sketcher.Constraint("Vertical", 4, 2, 12, 2),
    Sketcher.Constraint("Vertical", 3, 2, 13, 2),
    Sketcher.Constraint("Vertical", 2, 2, 14, 2),
    Sketcher.Constraint("Vertical", 13, 2, 15, 2),
    Sketcher.Constraint("Vertical", 10, 2, 18, 2),
    Sketcher.Constraint("Vertical", 9, 2, 19, 2),
    Sketcher.Constraint("Equal", 4, 7),
    Sketcher.Constraint("Angle", 0, Q("-60.000004 deg")),
    Sketcher.Constraint("DistanceX", 1, 1, 1, 2, Q("3.13 mm")),
    Sketcher.Constraint("DistanceY", -1, 1, 2, 2, Q("10.8 mm")),
    Sketcher.Constraint("DistanceY", 14, 2, -1, 1, Q("58.8 mm")),
    Sketcher.Constraint("DistanceX", 0, 2, 6, 2, Q("34.6 mm")),
    Sketcher.Constraint("Distance", 0, Q("3.13 mm")),
    Sketcher.Constraint("DistanceX", 0, 2, -1, 1, Q("18.841818 mm")),
])
sketch7.setExpression("Constraints[66]", "Params.sketch7_width")
sketch7.setExpression("Constraints[70]", "Params.sketch7_length")
pocket5 = body.newObject("PartDesign::Pocket", "Pocket004")
pocket5.Profile = sketch7
pocket5.setExpression("Length", "Params.pocket5_length")

doc.recompute()
